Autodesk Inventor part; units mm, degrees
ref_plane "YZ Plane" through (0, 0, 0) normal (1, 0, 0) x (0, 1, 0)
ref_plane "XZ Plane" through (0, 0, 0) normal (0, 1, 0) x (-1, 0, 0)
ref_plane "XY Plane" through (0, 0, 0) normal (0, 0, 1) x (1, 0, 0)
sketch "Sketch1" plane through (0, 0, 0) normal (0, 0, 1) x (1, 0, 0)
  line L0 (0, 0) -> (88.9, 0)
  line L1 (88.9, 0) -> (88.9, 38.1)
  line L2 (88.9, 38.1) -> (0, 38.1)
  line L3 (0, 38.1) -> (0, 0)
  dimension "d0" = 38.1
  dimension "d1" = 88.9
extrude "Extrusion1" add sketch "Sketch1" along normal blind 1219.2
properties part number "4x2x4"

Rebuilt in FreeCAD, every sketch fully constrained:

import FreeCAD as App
import Part
import Sketcher
from FreeCAD import Vector
Q = App.Units.Quantity

doc = App.newDocument("Part")
body = doc.addObject("PartDesign::Body", "Body")

sketch1 = doc.addObject("Sketcher::SketchObject", "Sketch")
body.addObject(sketch1)
sketch1.AttachmentSupport = (doc.XY_Plane, [""])
sketch1.MapMode = "FlatFace"
sketch1.addGeometry([
    Part.LineSegment(Vector(0, 38.1, 0), Vector(0, 0, 0)),
    Part.LineSegment(Vector(0, 0, 0), Vector(88.9, 0, 0)),
    Part.LineSegment(Vector(88.9, 0, 0), Vector(88.9, 38.1, 0)),
    Part.LineSegment(Vector(88.9, 38.1, 0), Vector(0, 38.1, 0)),
], False)
sketch1.addConstraint([
    Sketcher.Constraint("Coincident", 0, 2, 1, 1),
    Sketcher.Constraint("Coincident", 1, 2, 2, 1),
    Sketcher.Constraint("Coincident", 2, 2, 3, 1),
    Sketcher.Constraint("Coincident", 3, 2, 0, 1),
    Sketcher.Constraint("Vertical", 0),
    Sketcher.Constraint("Horizontal", 1),
    Sketcher.Constraint("Vertical", 2),
    Sketcher.Constraint("Horizontal", 3),
    Sketcher.Constraint("Coincident", 0, 2, -1, 1),
    Sketcher.Constraint("DistanceX", 1, 1, 1, 2, Q("3.5 in")),
    Sketcher.Constraint("DistanceY", 0, 2, 0, 1, Q("1.5 in")),
])
pad1 = doc.addObject("PartDesign::Pad", "Pad")
body.addObject(pad1)
pad1.Profile = sketch1
pad1.Length = Q("48 in")

doc.recompute()
